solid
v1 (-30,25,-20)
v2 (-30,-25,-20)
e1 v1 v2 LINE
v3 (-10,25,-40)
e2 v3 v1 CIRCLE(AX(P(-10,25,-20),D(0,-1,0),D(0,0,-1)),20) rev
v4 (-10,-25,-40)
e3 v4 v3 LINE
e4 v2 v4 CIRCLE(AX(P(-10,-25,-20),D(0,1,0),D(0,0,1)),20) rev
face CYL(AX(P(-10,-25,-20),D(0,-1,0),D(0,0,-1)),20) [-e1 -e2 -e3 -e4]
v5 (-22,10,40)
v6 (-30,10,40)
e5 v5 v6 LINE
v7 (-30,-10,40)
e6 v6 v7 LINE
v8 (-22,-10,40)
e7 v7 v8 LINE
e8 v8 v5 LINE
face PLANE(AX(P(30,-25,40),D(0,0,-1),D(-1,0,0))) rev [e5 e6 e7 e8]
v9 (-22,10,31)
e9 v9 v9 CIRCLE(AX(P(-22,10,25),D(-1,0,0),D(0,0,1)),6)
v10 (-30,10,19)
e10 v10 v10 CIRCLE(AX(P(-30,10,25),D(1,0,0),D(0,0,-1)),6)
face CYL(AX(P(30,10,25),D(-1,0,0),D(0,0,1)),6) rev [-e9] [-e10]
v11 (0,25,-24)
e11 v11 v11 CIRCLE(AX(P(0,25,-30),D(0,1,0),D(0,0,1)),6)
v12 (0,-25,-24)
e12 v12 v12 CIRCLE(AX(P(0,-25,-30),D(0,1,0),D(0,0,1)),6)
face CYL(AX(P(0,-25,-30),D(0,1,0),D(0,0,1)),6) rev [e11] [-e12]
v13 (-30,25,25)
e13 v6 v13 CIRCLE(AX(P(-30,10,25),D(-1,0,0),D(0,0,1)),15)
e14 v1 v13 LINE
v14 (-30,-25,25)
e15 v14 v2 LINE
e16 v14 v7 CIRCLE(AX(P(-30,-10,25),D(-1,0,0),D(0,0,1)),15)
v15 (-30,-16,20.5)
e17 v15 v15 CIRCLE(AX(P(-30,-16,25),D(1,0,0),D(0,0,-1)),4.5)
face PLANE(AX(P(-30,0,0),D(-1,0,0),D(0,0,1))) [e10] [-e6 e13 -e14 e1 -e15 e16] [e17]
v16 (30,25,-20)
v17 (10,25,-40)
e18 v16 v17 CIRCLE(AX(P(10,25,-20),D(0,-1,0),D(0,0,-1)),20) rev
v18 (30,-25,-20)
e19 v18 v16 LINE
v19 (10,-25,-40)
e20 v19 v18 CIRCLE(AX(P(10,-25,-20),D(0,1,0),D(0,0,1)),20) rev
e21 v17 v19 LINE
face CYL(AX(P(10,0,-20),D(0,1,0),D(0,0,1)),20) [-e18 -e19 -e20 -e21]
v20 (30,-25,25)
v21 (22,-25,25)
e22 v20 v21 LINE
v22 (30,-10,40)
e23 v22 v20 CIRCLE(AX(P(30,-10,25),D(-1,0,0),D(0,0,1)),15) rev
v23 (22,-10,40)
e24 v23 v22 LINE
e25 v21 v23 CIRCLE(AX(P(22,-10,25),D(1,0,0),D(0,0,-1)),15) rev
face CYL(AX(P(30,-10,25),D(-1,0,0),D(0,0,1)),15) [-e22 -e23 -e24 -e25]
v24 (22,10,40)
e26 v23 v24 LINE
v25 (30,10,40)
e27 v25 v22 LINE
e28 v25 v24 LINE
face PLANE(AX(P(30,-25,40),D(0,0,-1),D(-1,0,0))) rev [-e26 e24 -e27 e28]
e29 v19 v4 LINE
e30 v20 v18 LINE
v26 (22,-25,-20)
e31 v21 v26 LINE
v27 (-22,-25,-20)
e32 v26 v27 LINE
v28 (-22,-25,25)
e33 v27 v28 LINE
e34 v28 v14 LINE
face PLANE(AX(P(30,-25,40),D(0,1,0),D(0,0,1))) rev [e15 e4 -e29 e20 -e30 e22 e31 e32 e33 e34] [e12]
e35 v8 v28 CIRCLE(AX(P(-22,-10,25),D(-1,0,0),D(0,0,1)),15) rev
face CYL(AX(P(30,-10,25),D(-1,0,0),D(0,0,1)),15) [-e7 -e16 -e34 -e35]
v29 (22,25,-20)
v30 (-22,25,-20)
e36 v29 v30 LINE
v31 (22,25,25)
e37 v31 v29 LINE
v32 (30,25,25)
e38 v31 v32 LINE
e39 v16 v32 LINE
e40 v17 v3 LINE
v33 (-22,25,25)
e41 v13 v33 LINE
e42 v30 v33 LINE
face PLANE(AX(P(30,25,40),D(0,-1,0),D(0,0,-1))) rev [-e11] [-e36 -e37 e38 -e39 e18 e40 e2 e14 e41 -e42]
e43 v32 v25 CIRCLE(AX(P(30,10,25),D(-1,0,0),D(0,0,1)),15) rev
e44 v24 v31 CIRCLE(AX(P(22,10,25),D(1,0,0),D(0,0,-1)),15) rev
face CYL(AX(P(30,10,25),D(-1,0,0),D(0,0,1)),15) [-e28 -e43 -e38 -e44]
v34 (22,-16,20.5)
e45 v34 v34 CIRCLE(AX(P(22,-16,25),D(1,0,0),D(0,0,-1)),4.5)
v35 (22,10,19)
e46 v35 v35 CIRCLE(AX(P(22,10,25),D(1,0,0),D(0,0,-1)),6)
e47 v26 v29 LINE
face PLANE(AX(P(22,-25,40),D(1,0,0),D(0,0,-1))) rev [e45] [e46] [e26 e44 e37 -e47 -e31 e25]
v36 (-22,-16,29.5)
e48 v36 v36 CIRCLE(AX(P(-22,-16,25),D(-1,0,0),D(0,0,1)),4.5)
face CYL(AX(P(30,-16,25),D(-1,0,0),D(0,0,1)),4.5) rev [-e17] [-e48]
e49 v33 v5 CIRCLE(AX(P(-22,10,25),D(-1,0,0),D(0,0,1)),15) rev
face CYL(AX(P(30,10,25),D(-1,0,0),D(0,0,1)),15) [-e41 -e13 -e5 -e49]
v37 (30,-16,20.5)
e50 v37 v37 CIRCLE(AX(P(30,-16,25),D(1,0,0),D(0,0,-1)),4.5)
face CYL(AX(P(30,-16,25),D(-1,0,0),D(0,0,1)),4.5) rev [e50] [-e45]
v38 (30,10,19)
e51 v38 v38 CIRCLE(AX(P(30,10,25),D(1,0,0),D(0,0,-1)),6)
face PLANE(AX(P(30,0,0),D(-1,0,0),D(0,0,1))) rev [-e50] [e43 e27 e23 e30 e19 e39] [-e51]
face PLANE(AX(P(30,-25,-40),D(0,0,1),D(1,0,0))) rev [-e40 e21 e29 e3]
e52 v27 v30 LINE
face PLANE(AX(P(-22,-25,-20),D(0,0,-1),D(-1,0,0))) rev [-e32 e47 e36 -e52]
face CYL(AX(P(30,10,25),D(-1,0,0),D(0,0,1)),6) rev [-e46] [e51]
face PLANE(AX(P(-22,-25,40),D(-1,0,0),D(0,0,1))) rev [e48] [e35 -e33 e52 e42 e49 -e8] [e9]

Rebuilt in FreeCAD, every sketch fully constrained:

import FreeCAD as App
import Part
import Sketcher


def edges_at(feature, points):
    """Names of the edges that pass closest to the given points."""
    edges = feature.Shape.Edges
    near = lambda p: min(range(len(edges)), key=lambda i: edges[i].distToShape(Part.Vertex(*p))[0])
    return sorted({f"Edge{near(p) + 1}" for p in points})

doc = App.newDocument("Part")
params = doc.addObject("Spreadsheet::Sheet", "Params")
for row, (alias, value) in enumerate([
    ("sketch1_diameter", "9 mm"),
    ("sketch1_diameter2", "12 mm"),
    ("sketch1_width", "50 mm"),
    ("sketch1_height", "80 mm"),
    ("pad1_length", "60 mm"),
    ("sketch2_width", "44 mm"),
    ("sketch2_height", "60 mm"),
    ("sketch3_diameter", "12 mm"),
    ("fillet_radius", "20 mm"),
    ("fillet2_radius", "15 mm"),
], start=1):
    params.set(f"A{row}", alias)
    params.set(f"B{row}", "=" + value)
    params.setAlias(f"B{row}", alias)

body = doc.addObject("PartDesign::Body", "Body")

# Sketch on YZ plane
sketch1 = body.newObject("Sketcher::SketchObject", "Sketch")
sketch1.AttachmentSupport = (doc.getObject("YZ_Plane"), [""])
sketch1.MapMode = "FlatFace"
sketch1.addGeometry([
    Part.LineSegment(App.Vector(25, 40, 0), App.Vector(-25, 40, 0)),  # 0
    Part.LineSegment(App.Vector(-25, 40, 0), App.Vector(-25, -40, 0)),  # 1
    Part.LineSegment(App.Vector(-25, -40, 0), App.Vector(25, -40, 0)),  # 2
    Part.LineSegment(App.Vector(25, -40, 0), App.Vector(25, 40, 0)),  # 3
    Part.Circle(App.Vector(-16, 25, 0), App.Vector(0, 0, 1), 4.5),  # 4
    Part.Circle(App.Vector(10, 25, 0), App.Vector(0, 0, 1), 6),  # 5
], False)
sketch1.addConstraint([
    Sketcher.Constraint("Coincident", 0, 2, 1, 1),
    Sketcher.Constraint("Coincident", 1, 2, 2, 1),
    Sketcher.Constraint("Coincident", 2, 2, 3, 1),
    Sketcher.Constraint("Coincident", 3, 2, 0, 1),
    Sketcher.Constraint("Horizontal", 0),
    Sketcher.Constraint("Vertical", 1),
    Sketcher.Constraint("Horizontal", 2),
    Sketcher.Constraint("Vertical", 3),
    Sketcher.Constraint("Symmetric", 0, 2, 2, 2, -1, 1),
    Sketcher.Constraint("Horizontal", 4, 3, 5, 3),
    Sketcher.Constraint("Diameter", 4, 9.0),
    Sketcher.Constraint("Diameter", 5, 12.0),
    Sketcher.Constraint("DistanceX", 0, 2, 0, 1, 50.0),
    Sketcher.Constraint("DistanceY", 1, 2, 1, 1, 80.0),
    Sketcher.Constraint("DistanceX", 4, 3, -1, 1, 16.0),
    Sketcher.Constraint("DistanceY", -1, 1, 4, 3, 25.0),
    Sketcher.Constraint("DistanceX", -1, 1, 5, 3, 10.0),
])
sketch1.setExpression("Constraints[10]", "Params.sketch1_diameter")
sketch1.setExpression("Constraints[11]", "Params.sketch1_diameter2")
sketch1.setExpression("Constraints[12]", "Params.sketch1_width")
sketch1.setExpression("Constraints[13]", "Params.sketch1_height")
pad1 = body.newObject("PartDesign::Pad", "Pad")
pad1.Profile = sketch1
pad1.setExpression("Length", "Params.pad1_length")
pad1.Midplane = True

# Sketch on XZ plane
sketch2 = body.newObject("Sketcher::SketchObject", "Sketch001")
sketch2.AttachmentSupport = (doc.getObject("XZ_Plane"), [""])
sketch2.MapMode = "FlatFace"
sketch2.addGeometry([
    Part.LineSegment(App.Vector(-22, -20, 0), App.Vector(-22, 40, 0)),
    Part.LineSegment(App.Vector(-22, 40, 0), App.Vector(22, 40, 0)),
    Part.LineSegment(App.Vector(22, 40, 0), App.Vector(22, -20, 0)),
    Part.LineSegment(App.Vector(22, -20, 0), App.Vector(-22, -20, 0)),
], False)
sketch2.addConstraint([
    Sketcher.Constraint("Coincident", 0, 2, 1, 1),
    Sketcher.Constraint("Coincident", 1, 2, 2, 1),
    Sketcher.Constraint("Coincident", 2, 2, 3, 1),
    Sketcher.Constraint("Coincident", 3, 2, 0, 1),
    Sketcher.Constraint("Vertical", 0),
    Sketcher.Constraint("Horizontal", 1),
    Sketcher.Constraint("Vertical", 2),
    Sketcher.Constraint("Horizontal", 3),
    Sketcher.Constraint("DistanceX", 1, 1, 1, 2, 44.0),
    Sketcher.Constraint("DistanceY", 0, 1, 0, 2, 60.0),
    Sketcher.Constraint("DistanceX", 0, 2, -1, 1, 22.0),
    Sketcher.Constraint("DistanceY", -1, 1, 0, 2, 40.0),
])
sketch2.setExpression("Constraints[8]", "Params.sketch2_width")
sketch2.setExpression("Constraints[9]", "Params.sketch2_height")
pocket1 = body.newObject("PartDesign::Pocket", "Pocket")
pocket1.Profile = sketch2
pocket1.Type = "ThroughAll"
pocket1.Midplane = True

# Sketch on XZ plane
sketch3 = body.newObject("Sketcher::SketchObject", "Sketch002")
sketch3.AttachmentSupport = (doc.getObject("XZ_Plane"), [""])
sketch3.MapMode = "FlatFace"
sketch3.addGeometry(Part.Circle(App.Vector(0, -30, 0), App.Vector(0, 0, 1), 6), False)
sketch3.addConstraint([
    Sketcher.Constraint("PointOnObject", 0, 3, -2),
    Sketcher.Constraint("Diameter", 0, 12.0),
    Sketcher.Constraint("DistanceY", 0, 3, -1, 1, 30.0),
])
sketch3.setExpression("Constraints[1]", "Params.sketch3_diameter")
pocket2 = body.newObject("PartDesign::Pocket", "Pocket001")
pocket2.Profile = sketch3
pocket2.Type = "ThroughAll"
pocket2.Midplane = True
doc.recompute()

fillet = body.newObject("PartDesign::Fillet", "Fillet")
fillet.Base = (pocket2, edges_at(pocket2, [(30, 0, -40), (-30, 0, -40)]))
fillet.setExpression("Radius", "Params.fillet_radius")
doc.recompute()

fillet2 = body.newObject("PartDesign::Fillet", "Fillet001")
fillet2.Base = (fillet, edges_at(fillet, [
    (-26, -25, 40),
    (-26, 25, 40),
    (26, -25, 40),
    (26, 25, 40),
]))
fillet2.setExpression("Radius", "Params.fillet2_radius")

doc.recompute()
